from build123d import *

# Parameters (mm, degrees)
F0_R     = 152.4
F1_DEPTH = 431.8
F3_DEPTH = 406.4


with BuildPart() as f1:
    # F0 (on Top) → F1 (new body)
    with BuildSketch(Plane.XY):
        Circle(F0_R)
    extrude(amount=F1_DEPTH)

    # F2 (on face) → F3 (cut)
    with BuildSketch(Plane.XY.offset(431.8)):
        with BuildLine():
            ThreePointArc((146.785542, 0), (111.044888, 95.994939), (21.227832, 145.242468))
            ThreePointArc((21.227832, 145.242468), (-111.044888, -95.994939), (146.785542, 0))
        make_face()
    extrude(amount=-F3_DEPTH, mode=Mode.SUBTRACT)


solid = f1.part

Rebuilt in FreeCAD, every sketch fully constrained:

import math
import FreeCAD as App
import Part
import Sketcher
Q = App.Units.Quantity

doc = App.newDocument("Part")
body = doc.addObject("PartDesign::Body", "Body")

# Sketch on XY plane
sketch1 = body.newObject("Sketcher::SketchObject", "Sketch")
sketch1.AttachmentSupport = (doc.getObject("XY_Plane"), [""])
sketch1.MapMode = "FlatFace"
sketch1.addGeometry(Part.Circle(App.Vector(0, 0, 0), App.Vector(0, 0, 1), 152), False)
sketch1.addConstraint(Sketcher.Constraint("Coincident", 0, 3, -1, 1))
sketch1.addConstraint(Sketcher.Constraint("Diameter", 0, Q("12 in")))
pad1 = body.newObject("PartDesign::Pad", "Pad")
pad1.Profile = sketch1
pad1.Length = Q("17 in")

# Sketch on XY plane
sketch2 = body.newObject("Sketcher::SketchObject", "Sketch001")
sketch2.AttachmentSupport = (doc.getObject("XY_Plane"), [""])
sketch2.MapMode = "FlatFace"
sketch2.AttachmentOffset = App.Placement(App.Vector(0, 0, 17 * 25.4), App.Rotation())
sketch2.addGeometry(Part.ArcOfCircle(Part.Circle(App.Vector(0, 0, 0), App.Vector(0, 0, 1), 147), math.radians(0), math.radians(82)), False)
sketch2.addGeometry(Part.ArcOfCircle(Part.Circle(App.Vector(0, 0, 0), App.Vector(0, 0, 1), 147), math.radians(82), math.radians(360)), False)
sketch2.addConstraint(Sketcher.Constraint("Tangent", 0, 1, 1, 2))
sketch2.addConstraint(Sketcher.Constraint("Coincident", 1, 1, 0, 2))
sketch2.addConstraint(Sketcher.Constraint("Coincident", 0, 3, -1, 1))
sketch2.addConstraint(Sketcher.Constraint("PointOnObject", 0, 1, -1))
sketch2.addConstraint(Sketcher.Constraint("Radius", 0, 146.785541))
sketch2.addConstraint(Sketcher.Constraint("DistanceX", -1, 1, 1, 1, 21.227832))
pocket1 = body.newObject("PartDesign::Pocket", "Pocket")
pocket1.Profile = sketch2
pocket1.Length = Q("16 in")

doc.recompute()
